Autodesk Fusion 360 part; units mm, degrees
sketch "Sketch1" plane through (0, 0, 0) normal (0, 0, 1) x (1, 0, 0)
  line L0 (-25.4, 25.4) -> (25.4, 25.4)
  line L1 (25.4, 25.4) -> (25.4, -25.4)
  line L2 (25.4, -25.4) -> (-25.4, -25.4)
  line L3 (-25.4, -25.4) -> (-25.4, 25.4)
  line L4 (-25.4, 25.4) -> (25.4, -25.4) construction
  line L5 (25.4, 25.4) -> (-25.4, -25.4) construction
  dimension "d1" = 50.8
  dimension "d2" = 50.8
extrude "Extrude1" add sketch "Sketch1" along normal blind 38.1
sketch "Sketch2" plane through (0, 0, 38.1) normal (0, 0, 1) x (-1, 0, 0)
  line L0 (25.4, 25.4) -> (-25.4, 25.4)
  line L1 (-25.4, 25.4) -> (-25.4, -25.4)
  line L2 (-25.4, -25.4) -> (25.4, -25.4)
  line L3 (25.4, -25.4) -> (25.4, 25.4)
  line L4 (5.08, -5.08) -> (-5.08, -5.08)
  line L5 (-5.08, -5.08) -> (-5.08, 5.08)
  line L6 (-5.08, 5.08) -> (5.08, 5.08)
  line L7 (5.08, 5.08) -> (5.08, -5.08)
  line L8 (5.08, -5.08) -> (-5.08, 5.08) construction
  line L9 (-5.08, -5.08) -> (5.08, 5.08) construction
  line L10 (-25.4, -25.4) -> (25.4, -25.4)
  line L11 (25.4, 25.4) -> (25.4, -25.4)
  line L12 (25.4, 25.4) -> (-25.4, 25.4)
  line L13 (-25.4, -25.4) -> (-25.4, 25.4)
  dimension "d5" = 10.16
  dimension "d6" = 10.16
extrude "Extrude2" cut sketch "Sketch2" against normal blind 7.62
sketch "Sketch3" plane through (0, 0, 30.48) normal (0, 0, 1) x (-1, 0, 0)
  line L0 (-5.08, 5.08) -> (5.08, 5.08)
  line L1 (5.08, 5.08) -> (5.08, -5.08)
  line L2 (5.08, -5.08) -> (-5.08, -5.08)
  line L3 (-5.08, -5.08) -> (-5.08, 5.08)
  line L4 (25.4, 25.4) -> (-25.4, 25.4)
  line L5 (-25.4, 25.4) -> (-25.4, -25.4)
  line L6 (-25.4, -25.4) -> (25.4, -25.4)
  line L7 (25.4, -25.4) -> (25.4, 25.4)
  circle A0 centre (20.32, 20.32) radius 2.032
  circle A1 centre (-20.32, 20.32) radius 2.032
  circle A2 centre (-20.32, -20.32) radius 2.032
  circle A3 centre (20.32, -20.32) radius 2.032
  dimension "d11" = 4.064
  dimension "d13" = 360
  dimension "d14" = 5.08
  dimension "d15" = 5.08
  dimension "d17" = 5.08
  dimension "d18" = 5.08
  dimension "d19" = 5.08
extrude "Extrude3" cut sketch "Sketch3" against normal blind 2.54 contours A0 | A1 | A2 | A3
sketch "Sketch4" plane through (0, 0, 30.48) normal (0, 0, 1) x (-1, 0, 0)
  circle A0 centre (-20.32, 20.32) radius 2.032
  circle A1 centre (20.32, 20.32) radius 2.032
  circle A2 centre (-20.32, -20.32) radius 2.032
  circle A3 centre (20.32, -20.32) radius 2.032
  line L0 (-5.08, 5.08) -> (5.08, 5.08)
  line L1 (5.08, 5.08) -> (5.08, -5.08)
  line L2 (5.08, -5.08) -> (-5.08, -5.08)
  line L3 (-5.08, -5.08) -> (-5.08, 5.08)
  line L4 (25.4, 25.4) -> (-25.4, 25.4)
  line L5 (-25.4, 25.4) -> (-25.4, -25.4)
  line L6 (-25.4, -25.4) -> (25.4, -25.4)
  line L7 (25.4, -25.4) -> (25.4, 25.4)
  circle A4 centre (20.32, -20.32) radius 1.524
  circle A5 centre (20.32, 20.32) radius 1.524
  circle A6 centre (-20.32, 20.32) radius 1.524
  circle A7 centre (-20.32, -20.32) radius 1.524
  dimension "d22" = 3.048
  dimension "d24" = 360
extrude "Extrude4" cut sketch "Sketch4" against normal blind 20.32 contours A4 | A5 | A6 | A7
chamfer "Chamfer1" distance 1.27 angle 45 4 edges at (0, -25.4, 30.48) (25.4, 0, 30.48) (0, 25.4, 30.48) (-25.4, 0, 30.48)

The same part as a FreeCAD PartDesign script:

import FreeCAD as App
import Part
import Sketcher
Q = App.Units.Quantity


def edges_at(feature, points):
    """Names of the edges that pass closest to the given points."""
    edges = feature.Shape.Edges
    near = lambda p: min(range(len(edges)), key=lambda i: edges[i].distToShape(Part.Vertex(*p))[0])
    return sorted({f"Edge{near(p) + 1}" for p in points})

doc = App.newDocument("Part")
body = doc.addObject("PartDesign::Body", "Body")

# Sketch on XY plane
sketch1 = body.newObject("Sketcher::SketchObject", "Sketch")
sketch1.AttachmentSupport = (doc.getObject("XY_Plane"), [""])
sketch1.MapMode = "FlatFace"
sketch1.addGeometry([
    Part.LineSegment(App.Vector(25.4, 25.4, 0), App.Vector(-25.4, 25.4, 0)),
    Part.LineSegment(App.Vector(-25.4, 25.4, 0), App.Vector(-25.4, -25.4, 0)),
    Part.LineSegment(App.Vector(-25.4, -25.4, 0), App.Vector(25.4, -25.4, 0)),
    Part.LineSegment(App.Vector(25.4, -25.4, 0), App.Vector(25.4, 25.4, 0)),
], False)
sketch1.addConstraint([
    Sketcher.Constraint("Coincident", 0, 2, 1, 1),
    Sketcher.Constraint("Coincident", 1, 2, 2, 1),
    Sketcher.Constraint("Coincident", 2, 2, 3, 1),
    Sketcher.Constraint("Coincident", 3, 2, 0, 1),
    Sketcher.Constraint("Horizontal", 0),
    Sketcher.Constraint("Vertical", 1),
    Sketcher.Constraint("Horizontal", 2),
    Sketcher.Constraint("Vertical", 3),
    Sketcher.Constraint("Symmetric", 0, 2, 2, 2, -1, 1),
    Sketcher.Constraint("Equal", 2, 1),
    Sketcher.Constraint("DistanceX", 0, 2, 0, 1, Q("2 in")),
])
pad1 = body.newObject("PartDesign::Pad", "Pad")
pad1.Profile = sketch1
pad1.Length = Q("1.5 in")

# Sketch on XY plane
sketch2 = body.newObject("Sketcher::SketchObject", "Sketch001")
sketch2.AttachmentSupport = (doc.getObject("XY_Plane"), [""])
sketch2.MapMode = "FlatFace"
sketch2.AttachmentOffset = App.Placement(App.Vector(0, 0, 1.5 * 25.4), App.Rotation())
sketch2.addGeometry([
    Part.LineSegment(App.Vector(-25.4, 25.4, 0), App.Vector(-25.4, -25.4, 0)),  # 0
    Part.LineSegment(App.Vector(-25.4, -25.4, 0), App.Vector(25.4, -25.4, 0)),  # 1
    Part.LineSegment(App.Vector(25.4, -25.4, 0), App.Vector(25.4, 25.4, 0)),  # 2
    Part.LineSegment(App.Vector(25.4, 25.4, 0), App.Vector(-25.4, 25.4, 0)),  # 3
    Part.LineSegment(App.Vector(-5.08, -5.08, 0), App.Vector(-5.08, 5.08, 0)),  # 4
    Part.LineSegment(App.Vector(-5.08, 5.08, 0), App.Vector(5.08, 5.08, 0)),  # 5
    Part.LineSegment(App.Vector(5.08, 5.08, 0), App.Vector(5.08, -5.08, 0)),  # 6
    Part.LineSegment(App.Vector(5.08, -5.08, 0), App.Vector(-5.08, -5.08, 0)),  # 7
], False)
sketch2.addConstraint([
    Sketcher.Constraint("Coincident", 0, 2, 1, 1),
    Sketcher.Constraint("Coincident", 1, 2, 2, 1),
    Sketcher.Constraint("Coincident", 2, 2, 3, 1),
    Sketcher.Constraint("Coincident", 3, 2, 0, 1),
    Sketcher.Constraint("Coincident", 4, 2, 5, 1),
    Sketcher.Constraint("Coincident", 5, 2, 6, 1),
    Sketcher.Constraint("Coincident", 6, 2, 7, 1),
    Sketcher.Constraint("Coincident", 7, 2, 4, 1),
    Sketcher.Constraint("Vertical", 0),
    Sketcher.Constraint("Horizontal", 1),
    Sketcher.Constraint("Vertical", 2),
    Sketcher.Constraint("Horizontal", 3),
    Sketcher.Constraint("Vertical", 4),
    Sketcher.Constraint("Horizontal", 5),
    Sketcher.Constraint("Vertical", 6),
    Sketcher.Constraint("Horizontal", 7),
    Sketcher.Constraint("Symmetric", 0, 2, 2, 2, -1, 1),
    Sketcher.Constraint("Symmetric", 4, 2, 6, 2, -1, 1),
    Sketcher.Constraint("Equal", 3, 0),
    Sketcher.Constraint("Equal", 7, 4),
    Sketcher.Constraint("DistanceX", 5, 1, 5, 2, Q("0.4 in")),
    Sketcher.Constraint("DistanceX", 1, 1, 1, 2, Q("2 in")),
])
pocket1 = body.newObject("PartDesign::Pocket", "Pocket")
pocket1.Profile = sketch2
pocket1.Length = Q("0.3 in")

# Sketch on XY plane
sketch3 = body.newObject("Sketcher::SketchObject", "Sketch002")
sketch3.AttachmentSupport = (doc.getObject("XY_Plane"), [""])
sketch3.MapMode = "FlatFace"
sketch3.AttachmentOffset = App.Placement(App.Vector(0, 0, 1.2 * 25.4), App.Rotation())
sketch3.addGeometry([
    Part.Circle(App.Vector(-20.32, -20.32, 0), App.Vector(0, 0, 1), 2.032),
    Part.Circle(App.Vector(20.32, -20.32, 0), App.Vector(0, 0, 1), 2.032),
    Part.Circle(App.Vector(20.32, 20.32, 0), App.Vector(0, 0, 1), 2.032),
    Part.Circle(App.Vector(-20.32, 20.32, 0), App.Vector(0, 0, 1), 2.032),
], False)
sketch3.addConstraint([
    Sketcher.Constraint("Equal", 0, 1),
    Sketcher.Constraint("Equal", 1, 2),
    Sketcher.Constraint("Equal", 2, 3),
    Sketcher.Constraint("Symmetric", 0, 3, 2, 3, -1, 1),
    Sketcher.Constraint("Symmetric", 1, 3, 3, 3, -1, 1),
    Sketcher.Constraint("Symmetric", 0, 3, 1, 3, -2),
    Sketcher.Constraint("Diameter", 0, Q("0.16 in")),
    Sketcher.Constraint("DistanceX", 0, 3, -1, 1, Q("0.8 in")),
    Sketcher.Constraint("DistanceY", 0, 3, -1, 1, Q("0.8 in")),
])
pocket2 = body.newObject("PartDesign::Pocket", "Pocket001")
pocket2.Profile = sketch3
pocket2.Length = Q("0.1 in")

# Sketch on XY plane
sketch4 = body.newObject("Sketcher::SketchObject", "Sketch003")
sketch4.AttachmentSupport = (doc.getObject("XY_Plane"), [""])
sketch4.MapMode = "FlatFace"
sketch4.AttachmentOffset = App.Placement(App.Vector(0, 0, 1.2 * 25.4), App.Rotation())
sketch4.addGeometry([
    Part.Circle(App.Vector(-20.32, 20.32, 0), App.Vector(0, 0, 1), 1.524),
    Part.Circle(App.Vector(-20.32, -20.32, 0), App.Vector(0, 0, 1), 1.524),
    Part.Circle(App.Vector(20.32, -20.32, 0), App.Vector(0, 0, 1), 1.524),
    Part.Circle(App.Vector(20.32, 20.32, 0), App.Vector(0, 0, 1), 1.524),
], False)
sketch4.addConstraint([
    Sketcher.Constraint("Equal", 0, 1),
    Sketcher.Constraint("Equal", 1, 2),
    Sketcher.Constraint("Equal", 2, 3),
    Sketcher.Constraint("Symmetric", 0, 3, 2, 3, -1, 1),
    Sketcher.Constraint("Symmetric", 1, 3, 3, 3, -1, 1),
    Sketcher.Constraint("Symmetric", 1, 3, 2, 3, -2),
    Sketcher.Constraint("Diameter", 0, Q("0.12 in")),
    Sketcher.Constraint("DistanceX", 0, 3, -1, 1, Q("0.8 in")),
    Sketcher.Constraint("DistanceY", -1, 1, 0, 3, Q("0.8 in")),
])
pocket3 = body.newObject("PartDesign::Pocket", "Pocket002")
pocket3.Profile = sketch4
pocket3.Length = Q("0.8 in")
doc.recompute()

chamfer = body.newObject("PartDesign::Chamfer", "Chamfer")
chamfer.Base = (pocket3, edges_at(pocket3, [
    (0, -25.4, 30.48),
    (25.4, 0, 30.48),
    (0, 25.4, 30.48),
    (-25.4, 0, 30.48),
]))
chamfer.Size = Q("0.05 in")

doc.recompute()
